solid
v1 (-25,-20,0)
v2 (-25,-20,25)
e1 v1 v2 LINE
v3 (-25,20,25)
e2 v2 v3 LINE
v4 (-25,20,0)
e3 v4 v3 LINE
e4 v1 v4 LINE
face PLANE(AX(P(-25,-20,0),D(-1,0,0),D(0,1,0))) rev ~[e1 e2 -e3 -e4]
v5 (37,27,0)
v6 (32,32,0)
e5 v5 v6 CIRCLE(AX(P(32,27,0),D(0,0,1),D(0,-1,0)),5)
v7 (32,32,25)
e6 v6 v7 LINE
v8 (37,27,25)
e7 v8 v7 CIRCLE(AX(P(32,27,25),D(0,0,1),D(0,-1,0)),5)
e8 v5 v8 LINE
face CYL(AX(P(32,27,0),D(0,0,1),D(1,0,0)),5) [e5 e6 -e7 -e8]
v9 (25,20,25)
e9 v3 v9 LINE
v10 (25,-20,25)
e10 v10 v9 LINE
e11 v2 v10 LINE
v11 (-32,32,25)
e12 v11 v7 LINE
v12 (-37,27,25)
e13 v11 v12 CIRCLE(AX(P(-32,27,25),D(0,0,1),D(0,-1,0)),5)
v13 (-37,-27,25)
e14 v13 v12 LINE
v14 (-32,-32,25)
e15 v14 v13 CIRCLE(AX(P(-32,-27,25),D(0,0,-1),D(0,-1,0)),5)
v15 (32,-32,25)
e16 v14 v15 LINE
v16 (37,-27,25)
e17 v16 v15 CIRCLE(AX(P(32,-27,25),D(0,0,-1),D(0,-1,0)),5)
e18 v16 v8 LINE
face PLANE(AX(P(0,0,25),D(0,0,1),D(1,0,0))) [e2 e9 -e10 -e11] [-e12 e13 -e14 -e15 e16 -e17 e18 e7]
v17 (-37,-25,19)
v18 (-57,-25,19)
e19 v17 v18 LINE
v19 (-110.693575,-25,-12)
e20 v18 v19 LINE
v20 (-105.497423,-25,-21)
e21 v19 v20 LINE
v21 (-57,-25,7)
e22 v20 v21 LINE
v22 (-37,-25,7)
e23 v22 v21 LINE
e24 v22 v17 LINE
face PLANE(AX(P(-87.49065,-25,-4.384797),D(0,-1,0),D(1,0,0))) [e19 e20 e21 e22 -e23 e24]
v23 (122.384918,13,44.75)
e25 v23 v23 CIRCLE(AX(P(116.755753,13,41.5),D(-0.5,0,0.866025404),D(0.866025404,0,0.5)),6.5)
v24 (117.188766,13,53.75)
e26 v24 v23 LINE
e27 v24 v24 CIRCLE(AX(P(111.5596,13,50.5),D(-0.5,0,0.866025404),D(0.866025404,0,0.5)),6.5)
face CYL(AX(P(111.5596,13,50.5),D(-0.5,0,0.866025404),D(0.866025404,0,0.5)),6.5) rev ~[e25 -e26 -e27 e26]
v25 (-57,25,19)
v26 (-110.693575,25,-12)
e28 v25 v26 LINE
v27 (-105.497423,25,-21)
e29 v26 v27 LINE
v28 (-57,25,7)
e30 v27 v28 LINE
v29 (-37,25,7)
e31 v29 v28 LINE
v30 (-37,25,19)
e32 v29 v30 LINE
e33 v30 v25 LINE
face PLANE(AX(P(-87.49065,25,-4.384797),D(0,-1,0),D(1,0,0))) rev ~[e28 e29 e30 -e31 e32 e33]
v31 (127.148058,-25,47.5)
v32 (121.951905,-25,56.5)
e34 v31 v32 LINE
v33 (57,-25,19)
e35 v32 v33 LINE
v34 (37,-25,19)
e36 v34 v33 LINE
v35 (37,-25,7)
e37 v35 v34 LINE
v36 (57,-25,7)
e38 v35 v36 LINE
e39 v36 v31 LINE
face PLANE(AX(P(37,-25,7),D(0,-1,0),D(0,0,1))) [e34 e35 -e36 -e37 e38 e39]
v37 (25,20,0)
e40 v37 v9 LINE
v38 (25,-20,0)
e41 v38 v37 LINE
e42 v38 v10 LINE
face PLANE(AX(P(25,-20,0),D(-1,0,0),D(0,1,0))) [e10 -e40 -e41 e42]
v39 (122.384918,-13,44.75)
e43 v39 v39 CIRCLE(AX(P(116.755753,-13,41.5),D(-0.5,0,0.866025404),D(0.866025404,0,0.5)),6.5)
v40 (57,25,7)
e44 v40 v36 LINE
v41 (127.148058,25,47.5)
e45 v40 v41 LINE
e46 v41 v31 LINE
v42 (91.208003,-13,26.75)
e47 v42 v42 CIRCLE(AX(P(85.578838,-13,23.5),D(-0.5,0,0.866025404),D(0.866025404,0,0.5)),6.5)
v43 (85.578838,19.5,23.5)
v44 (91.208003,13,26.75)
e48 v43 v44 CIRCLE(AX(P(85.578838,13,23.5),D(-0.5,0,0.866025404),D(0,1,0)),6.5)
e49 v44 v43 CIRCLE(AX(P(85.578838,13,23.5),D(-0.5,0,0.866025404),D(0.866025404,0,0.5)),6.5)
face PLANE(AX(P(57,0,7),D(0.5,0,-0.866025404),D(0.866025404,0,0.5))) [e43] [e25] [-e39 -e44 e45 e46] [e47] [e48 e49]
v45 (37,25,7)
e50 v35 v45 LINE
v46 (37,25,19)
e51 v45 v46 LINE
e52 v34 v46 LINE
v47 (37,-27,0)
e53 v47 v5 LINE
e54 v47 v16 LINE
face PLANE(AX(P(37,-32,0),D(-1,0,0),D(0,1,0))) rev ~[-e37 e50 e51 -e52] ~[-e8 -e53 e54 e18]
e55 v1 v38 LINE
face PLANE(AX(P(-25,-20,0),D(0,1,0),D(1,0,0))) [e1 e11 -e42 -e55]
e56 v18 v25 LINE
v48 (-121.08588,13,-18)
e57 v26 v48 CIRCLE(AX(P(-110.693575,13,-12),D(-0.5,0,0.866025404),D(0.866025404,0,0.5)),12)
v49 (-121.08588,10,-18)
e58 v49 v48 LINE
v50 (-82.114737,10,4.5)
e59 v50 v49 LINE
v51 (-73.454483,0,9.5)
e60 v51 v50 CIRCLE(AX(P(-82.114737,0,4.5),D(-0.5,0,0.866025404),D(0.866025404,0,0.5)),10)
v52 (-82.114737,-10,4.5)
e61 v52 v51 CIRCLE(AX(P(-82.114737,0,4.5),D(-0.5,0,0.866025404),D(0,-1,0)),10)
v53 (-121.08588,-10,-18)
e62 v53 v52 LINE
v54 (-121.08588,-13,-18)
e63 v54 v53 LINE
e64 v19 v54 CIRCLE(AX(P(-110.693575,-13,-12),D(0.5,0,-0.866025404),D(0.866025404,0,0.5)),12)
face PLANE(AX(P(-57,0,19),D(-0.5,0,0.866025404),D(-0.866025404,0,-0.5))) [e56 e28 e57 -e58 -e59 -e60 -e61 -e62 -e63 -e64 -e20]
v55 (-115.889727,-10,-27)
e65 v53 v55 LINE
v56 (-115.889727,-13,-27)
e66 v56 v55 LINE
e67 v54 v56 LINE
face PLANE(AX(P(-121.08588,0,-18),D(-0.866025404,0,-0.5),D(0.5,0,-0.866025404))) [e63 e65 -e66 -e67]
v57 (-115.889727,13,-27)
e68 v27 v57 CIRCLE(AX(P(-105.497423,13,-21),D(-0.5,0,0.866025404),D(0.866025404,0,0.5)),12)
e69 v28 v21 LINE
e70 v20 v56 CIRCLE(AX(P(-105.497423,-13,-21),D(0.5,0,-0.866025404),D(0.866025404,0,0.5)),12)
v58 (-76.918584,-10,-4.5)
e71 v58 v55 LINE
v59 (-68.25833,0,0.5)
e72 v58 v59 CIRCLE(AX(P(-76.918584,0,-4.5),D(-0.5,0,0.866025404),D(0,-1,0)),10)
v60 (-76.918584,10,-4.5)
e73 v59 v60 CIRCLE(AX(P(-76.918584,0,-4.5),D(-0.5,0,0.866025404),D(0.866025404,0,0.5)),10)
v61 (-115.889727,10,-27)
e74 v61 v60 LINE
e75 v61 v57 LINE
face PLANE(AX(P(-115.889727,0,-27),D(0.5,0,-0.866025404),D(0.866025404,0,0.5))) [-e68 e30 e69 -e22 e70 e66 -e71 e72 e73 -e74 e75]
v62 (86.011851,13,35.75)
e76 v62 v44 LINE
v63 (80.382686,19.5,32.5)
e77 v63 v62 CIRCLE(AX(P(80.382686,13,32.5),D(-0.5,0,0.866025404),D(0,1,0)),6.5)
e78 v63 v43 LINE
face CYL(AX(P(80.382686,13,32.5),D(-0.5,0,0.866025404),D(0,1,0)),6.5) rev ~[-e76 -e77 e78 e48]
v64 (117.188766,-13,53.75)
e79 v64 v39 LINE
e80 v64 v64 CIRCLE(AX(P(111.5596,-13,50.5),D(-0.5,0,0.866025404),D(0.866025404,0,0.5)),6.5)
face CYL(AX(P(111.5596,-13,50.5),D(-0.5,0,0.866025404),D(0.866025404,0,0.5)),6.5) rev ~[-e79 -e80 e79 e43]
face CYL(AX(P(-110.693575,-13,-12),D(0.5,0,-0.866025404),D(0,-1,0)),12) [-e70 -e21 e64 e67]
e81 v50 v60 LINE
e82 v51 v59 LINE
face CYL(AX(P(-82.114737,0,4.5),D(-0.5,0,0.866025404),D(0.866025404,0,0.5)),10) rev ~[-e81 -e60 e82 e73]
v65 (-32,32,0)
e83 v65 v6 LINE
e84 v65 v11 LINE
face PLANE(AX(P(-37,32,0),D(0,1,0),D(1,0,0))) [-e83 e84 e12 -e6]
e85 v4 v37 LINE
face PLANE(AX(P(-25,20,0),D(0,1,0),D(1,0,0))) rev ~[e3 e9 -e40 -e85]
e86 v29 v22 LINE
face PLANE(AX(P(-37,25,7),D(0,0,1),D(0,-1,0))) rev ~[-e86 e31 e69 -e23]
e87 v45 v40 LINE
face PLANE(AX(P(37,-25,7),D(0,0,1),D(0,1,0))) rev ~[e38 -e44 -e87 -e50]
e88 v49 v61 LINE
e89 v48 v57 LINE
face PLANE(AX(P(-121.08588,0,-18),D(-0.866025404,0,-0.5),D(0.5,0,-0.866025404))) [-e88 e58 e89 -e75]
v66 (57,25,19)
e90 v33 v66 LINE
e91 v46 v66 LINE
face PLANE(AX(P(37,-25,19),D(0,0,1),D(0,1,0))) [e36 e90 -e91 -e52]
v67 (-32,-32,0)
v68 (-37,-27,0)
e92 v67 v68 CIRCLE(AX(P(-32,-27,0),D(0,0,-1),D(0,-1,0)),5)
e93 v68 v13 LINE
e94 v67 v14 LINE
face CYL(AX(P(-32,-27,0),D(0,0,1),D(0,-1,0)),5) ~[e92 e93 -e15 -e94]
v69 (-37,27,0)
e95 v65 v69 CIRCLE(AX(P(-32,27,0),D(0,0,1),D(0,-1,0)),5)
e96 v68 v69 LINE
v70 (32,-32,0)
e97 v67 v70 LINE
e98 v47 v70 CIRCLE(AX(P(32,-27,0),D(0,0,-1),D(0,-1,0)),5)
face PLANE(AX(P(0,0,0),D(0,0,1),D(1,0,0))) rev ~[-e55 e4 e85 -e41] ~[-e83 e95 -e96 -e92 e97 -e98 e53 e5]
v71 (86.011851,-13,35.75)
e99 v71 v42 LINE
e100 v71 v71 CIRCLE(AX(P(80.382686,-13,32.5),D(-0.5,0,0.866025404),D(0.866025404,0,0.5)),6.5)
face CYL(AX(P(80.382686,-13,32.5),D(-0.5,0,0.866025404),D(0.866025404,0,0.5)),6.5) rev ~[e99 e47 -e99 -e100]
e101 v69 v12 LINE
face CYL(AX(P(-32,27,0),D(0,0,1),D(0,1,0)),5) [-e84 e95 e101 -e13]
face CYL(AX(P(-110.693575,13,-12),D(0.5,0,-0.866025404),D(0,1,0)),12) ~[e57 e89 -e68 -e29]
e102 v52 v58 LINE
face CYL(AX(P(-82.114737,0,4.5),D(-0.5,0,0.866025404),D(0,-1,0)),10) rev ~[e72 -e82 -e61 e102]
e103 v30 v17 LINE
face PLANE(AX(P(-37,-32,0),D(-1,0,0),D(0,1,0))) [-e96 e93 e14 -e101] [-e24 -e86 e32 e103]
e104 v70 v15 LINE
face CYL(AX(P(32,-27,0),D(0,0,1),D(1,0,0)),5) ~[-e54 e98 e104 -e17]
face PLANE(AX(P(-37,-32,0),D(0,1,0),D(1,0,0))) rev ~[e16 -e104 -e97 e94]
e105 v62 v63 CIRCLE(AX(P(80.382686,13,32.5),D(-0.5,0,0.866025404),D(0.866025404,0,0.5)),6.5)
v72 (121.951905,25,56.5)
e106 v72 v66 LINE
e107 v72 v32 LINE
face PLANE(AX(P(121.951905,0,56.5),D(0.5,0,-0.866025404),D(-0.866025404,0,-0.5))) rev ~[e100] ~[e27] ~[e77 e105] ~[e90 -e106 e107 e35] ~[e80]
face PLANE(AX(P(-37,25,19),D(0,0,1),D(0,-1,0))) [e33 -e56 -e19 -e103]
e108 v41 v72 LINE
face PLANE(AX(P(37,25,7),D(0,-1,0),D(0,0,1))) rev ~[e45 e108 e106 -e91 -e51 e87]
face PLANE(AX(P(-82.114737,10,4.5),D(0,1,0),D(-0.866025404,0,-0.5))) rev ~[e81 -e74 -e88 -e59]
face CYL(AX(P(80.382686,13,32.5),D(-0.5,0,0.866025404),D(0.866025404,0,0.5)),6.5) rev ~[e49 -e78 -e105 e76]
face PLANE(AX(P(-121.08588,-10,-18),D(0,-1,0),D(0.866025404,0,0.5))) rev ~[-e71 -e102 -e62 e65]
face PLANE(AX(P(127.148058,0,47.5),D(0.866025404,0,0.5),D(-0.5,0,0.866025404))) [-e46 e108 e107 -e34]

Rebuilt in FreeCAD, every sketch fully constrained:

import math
import FreeCAD as App
import Part
import Sketcher
from FreeCAD import Vector
Q = App.Units.Quantity


def edges_at(feature, points):
    """Names of the edges that pass closest to the given points."""
    edges = feature.Shape.Edges
    near = lambda p: min(range(len(edges)), key=lambda i: edges[i].distToShape(Part.Vertex(*p))[0])
    return sorted({f"Edge{near(p) + 1}" for p in points})


def add_polygon(sketch, points):
    """Adds a closed chain of lines whose ends are joined by coincident constraints."""
    first, n = sketch.GeometryCount, len(points)
    for a, b in zip(points, points[1:] + points[:1]):
        sketch.addGeometry(Part.LineSegment(App.Vector(*a, 0), App.Vector(*b, 0)), False)
    for i in range(n):
        sketch.addConstraint(Sketcher.Constraint("Coincident", first + i, 2, first + (i + 1) % n, 1))

doc = App.newDocument("Part")
body = doc.addObject("PartDesign::Body", "Body")

# Sketch on XY plane
sketch1 = doc.addObject("Sketcher::SketchObject", "Sketch")
body.addObject(sketch1)
sketch1.AttachmentSupport = (doc.XY_Plane, [""])
sketch1.MapMode = "FlatFace"
add_polygon(sketch1, [(-37, 32), (-37, -32), (37, -32), (37, 32)])  # lines 0-3
add_polygon(sketch1, [(25, -20), (-25, -20), (-25, 20), (25, 20)])  # lines 4-7
sketch1.addConstraint([
    Sketcher.Constraint("Vertical", 0),
    Sketcher.Constraint("Horizontal", 1),
    Sketcher.Constraint("Vertical", 2),
    Sketcher.Constraint("Horizontal", 3),
    Sketcher.Constraint("Horizontal", 4),
    Sketcher.Constraint("Vertical", 5),
    Sketcher.Constraint("Horizontal", 6),
    Sketcher.Constraint("Vertical", 7),
    Sketcher.Constraint("Symmetric", 0, 2, 2, 2, -1, 1),
    Sketcher.Constraint("Symmetric", 4, 2, 6, 2, -1, 1),
    Sketcher.Constraint("DistanceX", 1, 1, 1, 2, 74.0),
    Sketcher.Constraint("DistanceX", 4, 2, 4, 1, 50.0),
    Sketcher.Constraint("DistanceY", 0, 2, 0, 1, 64.0),
    Sketcher.Constraint("DistanceY", 5, 1, 5, 2, 40.0),
])
pad1 = doc.addObject("PartDesign::Pad", "Pad")
body.addObject(pad1)
pad1.Profile = sketch1
pad1.Length = 25

# Sketch on YZ plane
sketch2 = doc.addObject("Sketcher::SketchObject", "Sketch001")
body.addObject(sketch2)
sketch2.AttachmentSupport = (doc.YZ_Plane, [""])
sketch2.MapMode = "FlatFace"
sketch2.AttachmentOffset = App.Placement(Vector(0, 0, -37), App.Rotation())
add_polygon(sketch2, [(25, 19), (25, 7), (-25, 7), (-25, 19)])  # lines 0-3
sketch2.addConstraint([
    Sketcher.Constraint("Vertical", 0),
    Sketcher.Constraint("Horizontal", 1),
    Sketcher.Constraint("Vertical", 2),
    Sketcher.Constraint("Horizontal", 3),
    Sketcher.Constraint("DistanceX", 1, 2, 1, 1, 50.0),
    Sketcher.Constraint("DistanceY", 0, 2, 0, 1, 12.0),
    Sketcher.Constraint("DistanceX", -1, 1, 0, 2, 25.0),
    Sketcher.Constraint("DistanceY", -1, 1, 0, 2, 7.0),
])
pad2 = doc.addObject("PartDesign::Pad", "Pad001")
body.addObject(pad2)
pad2.Profile = sketch2
pad2.Length = 20
pad2.Reversed = True

# Sketch on XZ plane
sketch3 = doc.addObject("Sketcher::SketchObject", "Sketch002")
body.addObject(sketch3)
sketch3.AttachmentSupport = (doc.XZ_Plane, [""])
sketch3.MapMode = "FlatFace"
add_polygon(sketch3, [(-115.889727, -27), (-57, 7), (-57, 19), (-121.08588, -18)])  # lines 0-3
sketch3.addConstraint([
    Sketcher.Constraint("Vertical", 1),
    Sketcher.Constraint("Parallel", 0, 2),
    Sketcher.Constraint("Perpendicular", 2, 3),
    Sketcher.Constraint("DistanceY", 1, 1, 1, 2, 12.0),
    Sketcher.Constraint("Angle", 0, Q("30 deg")),
    Sketcher.Constraint("Distance", 0, 68.0),
    Sketcher.Constraint("DistanceX", 0, 2, -1, 1, 57.0),
    Sketcher.Constraint("DistanceY", -1, 1, 0, 2, 7.0),
])
pad3 = doc.addObject("PartDesign::Pad", "Pad002")
body.addObject(pad3)
pad3.Profile = sketch3
pad3.Type = "TwoLengths"
pad3.Length = 25
pad3.Length2 = 25

# Sketch on an angled plane
sketch4 = doc.addObject("Sketcher::SketchObject", "Sketch003")
body.addObject(sketch4)
sketch4.Placement = App.Placement(Vector(-22.477241, 0, 38.931724), App.Rotation(Vector(0.866025404, 0, 0.5), Vector(0, 1, 0), Vector(-0.5, 0, 0.866025404), "ZXY"))
sketch4.addGeometry([
    Part.ArcOfCircle(Part.Circle(Vector(-68.863448, 0, 0), Vector(0, 0, 1), 10), math.radians(-90), math.radians(0)),  # 0
    Part.ArcOfCircle(Part.Circle(Vector(-68.863448, 0, 0), Vector(0, 0, 1), 10), math.radians(0), math.radians(90)),  # 1
    Part.LineSegment(Vector(-68.863448, 10, 0), Vector(-113.863448, 10, 0)),  # 2
    Part.LineSegment(Vector(-113.863448, 10, 0), Vector(-113.863448, -10, 0)),  # 3
    Part.LineSegment(Vector(-113.863448, -10, 0), Vector(-68.863448, -10, 0)),  # 4
], False)
sketch4.addConstraint([
    Sketcher.Constraint("Tangent", 0, 2, 1, 1),
    Sketcher.Constraint("Tangent", 1, 2, 2, 1),
    Sketcher.Constraint("Coincident", 2, 2, 3, 1),
    Sketcher.Constraint("Coincident", 3, 2, 4, 1),
    Sketcher.Constraint("Tangent", 4, 2, 0, 1),
    Sketcher.Constraint("Horizontal", 2),
    Sketcher.Constraint("Vertical", 3),
    Sketcher.Constraint("Horizontal", 4),
    Sketcher.Constraint("Equal", 0, 1),
    Sketcher.Constraint("PointOnObject", 0, 3, -1),
    Sketcher.Constraint("PointOnObject", 0, 2, -1),
    Sketcher.Constraint("Radius", 0, 10.0),
    Sketcher.Constraint("DistanceX", 2, 2, 2, 1, 45.0),
    Sketcher.Constraint("DistanceX", 0, 3, -1, 1, 68.863448),
])
pocket1 = doc.addObject("PartDesign::Pocket", "Pocket")
body.addObject(pocket1)
pocket1.Profile = sketch4
pocket1.Length = 25

# Sketch on YZ plane
sketch5 = doc.addObject("Sketcher::SketchObject", "Sketch004")
body.addObject(sketch5)
sketch5.AttachmentSupport = (doc.YZ_Plane, [""])
sketch5.MapMode = "FlatFace"
sketch5.AttachmentOffset = App.Placement(Vector(0, 0, 37), App.Rotation())
add_polygon(sketch5, [(-25, 19), (-25, 7), (25, 7), (25, 19)])  # lines 0-3
sketch5.addConstraint([
    Sketcher.Constraint("Vertical", 0),
    Sketcher.Constraint("Horizontal", 1),
    Sketcher.Constraint("Vertical", 2),
    Sketcher.Constraint("Horizontal", 3),
    Sketcher.Constraint("DistanceX", 1, 1, 1, 2, 50.0),
    Sketcher.Constraint("DistanceY", 0, 2, 0, 1, 12.0),
    Sketcher.Constraint("DistanceX", 0, 2, -1, 1, 25.0),
    Sketcher.Constraint("DistanceY", -1, 1, 0, 2, 7.0),
])
pad4 = doc.addObject("PartDesign::Pad", "Pad003")
body.addObject(pad4)
pad4.Profile = sketch5
pad4.Length = 20

# Sketch on XZ plane
sketch6 = doc.addObject("Sketcher::SketchObject", "Sketch005")
body.addObject(sketch6)
sketch6.AttachmentSupport = (doc.XZ_Plane, [""])
sketch6.MapMode = "FlatFace"
add_polygon(sketch6, [(37, 19), (37, 7), (57, 7), (127.148058, 47.5), (121.951905, 56.5), (57, 19)])  # lines 0-5
sketch6.addConstraint([
    Sketcher.Constraint("Vertical", 0),
    Sketcher.Constraint("Horizontal", 1),
    Sketcher.Constraint("Horizontal", 5),
    Sketcher.Constraint("Perpendicular", 2, 3),
    Sketcher.Constraint("Perpendicular", 3, 4),
    Sketcher.Constraint("Vertical", 1, 2, 4, 2),
    Sketcher.Constraint("DistanceX", 1, 1, 1, 2, 20.0),
    Sketcher.Constraint("DistanceY", 0, 2, 0, 1, 12.0),
    Sketcher.Constraint("Angle", 2, Q("30 deg")),
    Sketcher.Constraint("Distance", 2, 81.0),
    Sketcher.Constraint("DistanceX", -1, 1, 0, 2, 37.0),
    Sketcher.Constraint("DistanceY", -1, 1, 0, 2, 7.0),
])
pad5 = doc.addObject("PartDesign::Pad", "Pad004")
body.addObject(pad5)
pad5.Profile = sketch6
pad5.Type = "TwoLengths"
pad5.Length = 25
pad5.Length2 = 25

# Sketch on an angled plane
sketch7 = doc.addObject("Sketcher::SketchObject", "Sketch006")
body.addObject(sketch7)
sketch7.Placement = App.Placement(Vector(6.022759, 0, -10.431724), App.Rotation(Vector(0.866025404, 0, 0.5), Vector(0, 1, 0), Vector(-0.5, 0, 0.866025404), "ZXY"))
sketch7.addGeometry([
    Part.ArcOfCircle(Part.Circle(Vector(85.863448, 13, 0), Vector(0, 0, 1), 6.5), math.radians(0), math.radians(90)),  # 0
    Part.ArcOfCircle(Part.Circle(Vector(85.863448, 13, 0), Vector(0, 0, 1), 6.5), math.radians(90), math.radians(360)),  # 1
    Part.Circle(Vector(121.863448, 13, 0), Vector(0, 0, 1), 6.5),  # 2
    Part.Circle(Vector(121.863448, -13, 0), Vector(0, 0, 1), 6.5),  # 3
    Part.Circle(Vector(85.863448, -13, 0), Vector(0, 0, 1), 6.5),  # 4
], False)
sketch7.addConstraint([
    Sketcher.Constraint("Tangent", 0, 1, 1, 2),
    Sketcher.Constraint("Coincident", 1, 1, 0, 2),
    Sketcher.Constraint("Equal", 1, 2),
    Sketcher.Constraint("Equal", 2, 3),
    Sketcher.Constraint("Equal", 3, 4),
    Sketcher.Constraint("Symmetric", 2, 3, 3, 3, -1),
    Sketcher.Constraint("Symmetric", 0, 3, 4, 3, -1),
    Sketcher.Constraint("Horizontal", 1, 3, 2, 3),
    Sketcher.Constraint("Horizontal", 2, 3, 0, 1),
    Sketcher.Constraint("Vertical", 4, 3, 1, 1),
    Sketcher.Constraint("Diameter", 2, 13.0),
    Sketcher.Constraint("DistanceY", -1, 1, 0, 3, 13.0),
    Sketcher.Constraint("DistanceX", 0, 3, 2, 3, 36.0),
    Sketcher.Constraint("DistanceX", -1, 1, 0, 3, 85.863448),
])
pocket2 = doc.addObject("PartDesign::Pocket", "Pocket001")
body.addObject(pocket2)
pocket2.Profile = sketch7
pocket2.Length = 25
doc.recompute()

fillet = doc.addObject("PartDesign::Fillet", "Fillet")
body.addObject(fillet)
fillet.Base = (pocket2, edges_at(pocket2, [
    (-37, 32, 12.5),
    (37, 32, 12.5),
    (-37, -32, 12.5),
    (37, -32, 12.5),
]))
fillet.Radius = 5
doc.recompute()

fillet2 = doc.addObject("PartDesign::Fillet", "Fillet001")
body.addObject(fillet2)
fillet2.Base = (fillet, edges_at(fillet, [(-118.488, 25, -22.5), (-118.488, -25, -22.5)]))
fillet2.Radius = 12

doc.recompute()
